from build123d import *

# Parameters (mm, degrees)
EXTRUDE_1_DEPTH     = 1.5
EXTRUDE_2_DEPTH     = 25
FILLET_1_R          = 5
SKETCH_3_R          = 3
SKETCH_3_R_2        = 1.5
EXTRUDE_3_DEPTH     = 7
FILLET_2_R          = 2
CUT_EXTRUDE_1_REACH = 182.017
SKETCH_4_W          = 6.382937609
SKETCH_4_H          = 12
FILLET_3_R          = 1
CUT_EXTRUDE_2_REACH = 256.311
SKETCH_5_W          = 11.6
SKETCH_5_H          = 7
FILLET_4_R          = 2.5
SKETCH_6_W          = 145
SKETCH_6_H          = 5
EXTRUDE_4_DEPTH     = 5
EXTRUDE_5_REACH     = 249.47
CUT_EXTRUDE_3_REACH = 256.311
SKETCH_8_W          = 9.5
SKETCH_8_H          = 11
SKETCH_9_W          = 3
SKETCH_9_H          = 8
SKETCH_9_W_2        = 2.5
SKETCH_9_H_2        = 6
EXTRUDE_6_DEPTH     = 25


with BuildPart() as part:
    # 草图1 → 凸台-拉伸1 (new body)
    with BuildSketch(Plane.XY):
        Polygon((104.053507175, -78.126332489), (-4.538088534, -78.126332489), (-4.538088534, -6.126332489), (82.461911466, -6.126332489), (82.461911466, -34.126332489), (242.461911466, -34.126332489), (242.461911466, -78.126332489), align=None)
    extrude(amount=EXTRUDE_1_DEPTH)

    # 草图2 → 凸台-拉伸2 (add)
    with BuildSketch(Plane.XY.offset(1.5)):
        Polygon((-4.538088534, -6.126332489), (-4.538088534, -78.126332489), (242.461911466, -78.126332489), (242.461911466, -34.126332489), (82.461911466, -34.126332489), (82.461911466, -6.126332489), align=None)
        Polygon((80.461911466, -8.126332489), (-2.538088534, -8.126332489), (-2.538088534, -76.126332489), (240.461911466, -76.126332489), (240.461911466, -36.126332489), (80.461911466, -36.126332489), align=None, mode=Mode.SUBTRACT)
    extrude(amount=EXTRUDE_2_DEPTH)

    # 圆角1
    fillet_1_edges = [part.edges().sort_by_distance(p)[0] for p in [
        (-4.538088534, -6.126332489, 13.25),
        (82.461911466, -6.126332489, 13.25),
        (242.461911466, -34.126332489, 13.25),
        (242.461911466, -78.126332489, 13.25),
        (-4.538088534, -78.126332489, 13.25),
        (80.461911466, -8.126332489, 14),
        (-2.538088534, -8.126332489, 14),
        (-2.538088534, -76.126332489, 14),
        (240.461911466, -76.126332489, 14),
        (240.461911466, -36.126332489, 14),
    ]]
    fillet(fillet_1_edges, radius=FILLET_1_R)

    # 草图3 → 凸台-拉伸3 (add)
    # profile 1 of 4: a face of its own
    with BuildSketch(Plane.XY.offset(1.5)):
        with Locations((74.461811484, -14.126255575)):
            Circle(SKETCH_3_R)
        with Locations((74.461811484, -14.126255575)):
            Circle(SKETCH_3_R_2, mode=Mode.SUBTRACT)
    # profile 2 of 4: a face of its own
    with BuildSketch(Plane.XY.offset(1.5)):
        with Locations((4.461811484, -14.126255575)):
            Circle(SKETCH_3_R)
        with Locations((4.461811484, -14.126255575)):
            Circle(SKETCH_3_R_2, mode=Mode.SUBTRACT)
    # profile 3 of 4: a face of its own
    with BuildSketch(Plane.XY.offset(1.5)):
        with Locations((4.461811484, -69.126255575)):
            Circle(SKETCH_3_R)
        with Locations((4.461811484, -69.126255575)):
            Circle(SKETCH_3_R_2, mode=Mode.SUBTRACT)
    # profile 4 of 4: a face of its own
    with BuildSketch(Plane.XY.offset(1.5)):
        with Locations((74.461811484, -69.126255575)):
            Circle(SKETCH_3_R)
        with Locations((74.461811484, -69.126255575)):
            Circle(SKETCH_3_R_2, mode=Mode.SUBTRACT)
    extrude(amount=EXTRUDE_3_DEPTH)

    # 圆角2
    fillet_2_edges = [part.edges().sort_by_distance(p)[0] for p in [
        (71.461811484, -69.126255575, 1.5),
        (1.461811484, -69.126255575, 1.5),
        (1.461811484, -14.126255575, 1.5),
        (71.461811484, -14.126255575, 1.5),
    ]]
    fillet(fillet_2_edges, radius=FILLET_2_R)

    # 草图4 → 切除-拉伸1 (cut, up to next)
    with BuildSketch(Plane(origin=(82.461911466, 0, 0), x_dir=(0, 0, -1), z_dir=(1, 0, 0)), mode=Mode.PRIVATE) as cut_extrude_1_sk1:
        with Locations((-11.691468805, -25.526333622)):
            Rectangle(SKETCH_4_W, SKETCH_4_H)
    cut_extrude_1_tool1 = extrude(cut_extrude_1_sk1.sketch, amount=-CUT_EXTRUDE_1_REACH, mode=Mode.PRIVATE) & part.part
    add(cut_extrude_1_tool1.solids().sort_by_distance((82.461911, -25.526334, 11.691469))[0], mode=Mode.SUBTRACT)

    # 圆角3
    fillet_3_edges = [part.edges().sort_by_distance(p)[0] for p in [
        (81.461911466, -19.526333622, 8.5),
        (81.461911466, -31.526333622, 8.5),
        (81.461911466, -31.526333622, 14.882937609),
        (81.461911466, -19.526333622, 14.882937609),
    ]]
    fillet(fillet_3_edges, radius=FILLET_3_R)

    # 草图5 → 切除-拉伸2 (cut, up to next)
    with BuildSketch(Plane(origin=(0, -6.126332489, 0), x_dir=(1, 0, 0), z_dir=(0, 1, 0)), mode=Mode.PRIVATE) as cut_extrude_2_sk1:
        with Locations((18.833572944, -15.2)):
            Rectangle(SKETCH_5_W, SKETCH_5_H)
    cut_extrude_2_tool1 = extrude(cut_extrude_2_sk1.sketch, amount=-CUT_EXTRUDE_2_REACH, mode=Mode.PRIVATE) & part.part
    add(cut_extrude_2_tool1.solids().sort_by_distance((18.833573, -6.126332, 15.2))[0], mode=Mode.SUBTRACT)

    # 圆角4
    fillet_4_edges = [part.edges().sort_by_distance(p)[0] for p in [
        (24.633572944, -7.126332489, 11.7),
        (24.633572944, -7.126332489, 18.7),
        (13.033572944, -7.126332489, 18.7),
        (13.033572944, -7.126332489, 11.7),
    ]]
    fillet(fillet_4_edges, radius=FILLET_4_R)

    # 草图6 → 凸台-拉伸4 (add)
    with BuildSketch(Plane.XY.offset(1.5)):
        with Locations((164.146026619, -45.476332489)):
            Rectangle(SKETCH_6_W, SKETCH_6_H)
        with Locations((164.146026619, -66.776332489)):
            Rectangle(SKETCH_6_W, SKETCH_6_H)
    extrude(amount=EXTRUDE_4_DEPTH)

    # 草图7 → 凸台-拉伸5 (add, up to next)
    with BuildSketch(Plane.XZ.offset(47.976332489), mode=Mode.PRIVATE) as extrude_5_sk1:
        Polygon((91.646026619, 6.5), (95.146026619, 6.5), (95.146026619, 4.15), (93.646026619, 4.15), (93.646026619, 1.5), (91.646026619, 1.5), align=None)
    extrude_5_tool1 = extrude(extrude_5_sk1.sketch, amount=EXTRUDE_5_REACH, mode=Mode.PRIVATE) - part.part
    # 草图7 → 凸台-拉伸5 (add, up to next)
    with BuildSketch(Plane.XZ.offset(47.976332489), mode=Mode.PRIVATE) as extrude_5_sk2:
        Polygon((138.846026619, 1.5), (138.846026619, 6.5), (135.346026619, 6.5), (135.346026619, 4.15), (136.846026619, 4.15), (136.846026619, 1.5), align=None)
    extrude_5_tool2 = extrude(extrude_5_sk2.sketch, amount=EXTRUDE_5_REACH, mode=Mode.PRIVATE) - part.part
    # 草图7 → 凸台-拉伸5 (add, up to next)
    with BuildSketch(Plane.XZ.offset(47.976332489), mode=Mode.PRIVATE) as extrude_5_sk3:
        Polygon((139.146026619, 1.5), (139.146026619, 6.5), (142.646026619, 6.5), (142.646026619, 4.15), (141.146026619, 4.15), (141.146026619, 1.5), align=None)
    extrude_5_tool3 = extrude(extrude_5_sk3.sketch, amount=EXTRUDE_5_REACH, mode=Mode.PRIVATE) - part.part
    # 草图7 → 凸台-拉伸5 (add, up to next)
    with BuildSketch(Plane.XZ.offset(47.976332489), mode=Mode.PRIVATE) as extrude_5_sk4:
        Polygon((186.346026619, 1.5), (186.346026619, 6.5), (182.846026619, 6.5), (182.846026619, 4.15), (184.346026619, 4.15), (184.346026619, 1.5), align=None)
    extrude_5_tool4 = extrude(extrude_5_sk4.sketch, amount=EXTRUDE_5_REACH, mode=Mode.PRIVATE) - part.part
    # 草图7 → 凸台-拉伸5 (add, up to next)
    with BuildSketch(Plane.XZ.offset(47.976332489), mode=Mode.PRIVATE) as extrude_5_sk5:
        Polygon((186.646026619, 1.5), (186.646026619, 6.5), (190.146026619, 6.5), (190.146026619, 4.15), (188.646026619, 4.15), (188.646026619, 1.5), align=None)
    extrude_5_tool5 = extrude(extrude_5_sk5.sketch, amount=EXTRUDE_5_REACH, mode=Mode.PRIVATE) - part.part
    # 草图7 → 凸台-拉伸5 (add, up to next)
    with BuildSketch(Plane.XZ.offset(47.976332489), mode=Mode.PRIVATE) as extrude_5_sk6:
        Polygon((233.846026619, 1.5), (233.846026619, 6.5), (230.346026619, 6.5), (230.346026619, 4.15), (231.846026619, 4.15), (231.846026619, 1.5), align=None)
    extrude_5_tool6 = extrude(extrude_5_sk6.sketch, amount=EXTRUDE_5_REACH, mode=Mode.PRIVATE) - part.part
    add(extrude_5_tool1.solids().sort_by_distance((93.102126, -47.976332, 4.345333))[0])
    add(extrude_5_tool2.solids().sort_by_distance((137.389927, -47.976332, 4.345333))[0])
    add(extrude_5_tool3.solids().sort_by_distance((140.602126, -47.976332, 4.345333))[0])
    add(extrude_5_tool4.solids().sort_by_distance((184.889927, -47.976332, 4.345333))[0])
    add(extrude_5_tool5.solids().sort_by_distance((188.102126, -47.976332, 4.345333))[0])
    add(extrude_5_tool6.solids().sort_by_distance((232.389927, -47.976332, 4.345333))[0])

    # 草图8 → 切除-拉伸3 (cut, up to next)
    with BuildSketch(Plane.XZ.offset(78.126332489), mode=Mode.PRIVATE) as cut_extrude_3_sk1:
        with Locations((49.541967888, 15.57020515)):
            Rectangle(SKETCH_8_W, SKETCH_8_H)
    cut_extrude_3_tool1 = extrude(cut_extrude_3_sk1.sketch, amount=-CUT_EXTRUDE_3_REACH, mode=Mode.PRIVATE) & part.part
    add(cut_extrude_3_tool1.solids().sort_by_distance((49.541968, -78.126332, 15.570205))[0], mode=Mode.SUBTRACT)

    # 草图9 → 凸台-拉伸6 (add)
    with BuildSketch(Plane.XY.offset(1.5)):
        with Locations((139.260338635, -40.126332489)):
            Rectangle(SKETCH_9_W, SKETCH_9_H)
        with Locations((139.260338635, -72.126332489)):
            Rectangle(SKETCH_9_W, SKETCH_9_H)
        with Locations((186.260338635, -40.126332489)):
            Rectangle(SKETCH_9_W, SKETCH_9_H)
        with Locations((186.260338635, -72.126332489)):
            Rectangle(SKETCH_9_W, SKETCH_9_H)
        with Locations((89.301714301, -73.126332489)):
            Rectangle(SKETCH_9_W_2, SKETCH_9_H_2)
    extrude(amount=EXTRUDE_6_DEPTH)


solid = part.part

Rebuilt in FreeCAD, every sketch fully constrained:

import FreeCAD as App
import Part
import Sketcher
from FreeCAD import Vector
Q = App.Units.Quantity


def edges_at(feature, points):
    """Names of the edges that pass closest to the given points."""
    edges = feature.Shape.Edges
    near = lambda p: min(range(len(edges)), key=lambda i: edges[i].distToShape(Part.Vertex(*p))[0])
    return sorted({f"Edge{near(p) + 1}" for p in points})

doc = App.newDocument("Part")
body = doc.addObject("PartDesign::Body", "Body")

sketch1 = body.newObject("Sketcher::SketchObject", "Sketch")
sketch1.AttachmentSupport = (doc.getObject("XY_Plane"), [""])
sketch1.MapMode = "FlatFace"
sketch1.addGeometry([
    Part.LineSegment(Vector(-4.538089, -78.126332, 0), Vector(242.461911, -78.126332, 0)),
    Part.LineSegment(Vector(242.461911, -78.126332, 0), Vector(242.461911, -34.126332, 0)),
    Part.LineSegment(Vector(242.461911, -34.126332, 0), Vector(82.461911, -34.126332, 0)),
    Part.LineSegment(Vector(82.461911, -34.126332, 0), Vector(82.461911, -6.126332, 0)),
    Part.LineSegment(Vector(82.461911, -6.126332, 0), Vector(-4.538089, -6.126332, 0)),
    Part.LineSegment(Vector(-4.538089, -6.126332, 0), Vector(-4.538089, -78.126332, 0)),
], False)
sketch1.addConstraint([
    Sketcher.Constraint("Coincident", 0, 2, 1, 1),
    Sketcher.Constraint("Coincident", 1, 2, 2, 1),
    Sketcher.Constraint("Coincident", 2, 2, 3, 1),
    Sketcher.Constraint("Coincident", 3, 2, 4, 1),
    Sketcher.Constraint("Coincident", 4, 2, 5, 1),
    Sketcher.Constraint("Coincident", 5, 2, 0, 1),
    Sketcher.Constraint("Horizontal", 0),
    Sketcher.Constraint("Vertical", 1),
    Sketcher.Constraint("Horizontal", 2),
    Sketcher.Constraint("Vertical", 3),
    Sketcher.Constraint("Horizontal", 4),
    Sketcher.Constraint("Vertical", 5),
    Sketcher.Constraint("DistanceX", 0, 1, 0, 2, Q("247 mm")),
    Sketcher.Constraint("DistanceX", 2, 2, 2, 1, Q("160 mm")),
    Sketcher.Constraint("DistanceY", 1, 1, 1, 2, Q("44 mm")),
    Sketcher.Constraint("DistanceY", 3, 1, 3, 2, Q("28 mm")),
    Sketcher.Constraint("DistanceX", -1, 1, 0, 2, Q("242.461911 mm")),
    Sketcher.Constraint("DistanceY", 0, 2, -1, 1, Q("78.126332 mm")),
])
pad1 = body.newObject("PartDesign::Pad", "Pad")
pad1.Profile = sketch1
pad1.Length = 1.5

sketch2 = body.newObject("Sketcher::SketchObject", "Sketch001")
sketch2.AttachmentSupport = (doc.getObject("XY_Plane"), [""])
sketch2.MapMode = "FlatFace"
sketch2.AttachmentOffset = App.Placement(Vector(0, 0, 1.5), App.Rotation())
sketch2.addGeometry([
    Part.LineSegment(Vector(-4.538089, -6.126332, 0), Vector(-4.538089, -78.126332, 0)),
    Part.LineSegment(Vector(-4.538089, -78.126332, 0), Vector(242.461911, -78.126332, 0)),
    Part.LineSegment(Vector(242.461911, -78.126332, 0), Vector(242.461911, -34.126332, 0)),
    Part.LineSegment(Vector(242.461911, -34.126332, 0), Vector(82.461911, -34.126332, 0)),
    Part.LineSegment(Vector(82.461911, -34.126332, 0), Vector(82.461911, -6.126332, 0)),
    Part.LineSegment(Vector(82.461911, -6.126332, 0), Vector(-4.538089, -6.126332, 0)),
    Part.LineSegment(Vector(-2.538089, -8.126332, 0), Vector(80.461911, -8.126332, 0)),
    Part.LineSegment(Vector(80.461911, -8.126332, 0), Vector(80.461911, -36.126332, 0)),
    Part.LineSegment(Vector(80.461911, -36.126332, 0), Vector(240.461911, -36.126332, 0)),
    Part.LineSegment(Vector(240.461911, -36.126332, 0), Vector(240.461911, -76.126332, 0)),
    Part.LineSegment(Vector(240.461911, -76.126332, 0), Vector(-2.538089, -76.126332, 0)),
    Part.LineSegment(Vector(-2.538089, -76.126332, 0), Vector(-2.538089, -8.126332, 0)),
], False)
sketch2.addConstraint([
    Sketcher.Constraint("Coincident", 0, 2, 1, 1),
    Sketcher.Constraint("Coincident", 1, 2, 2, 1),
    Sketcher.Constraint("Coincident", 2, 2, 3, 1),
    Sketcher.Constraint("Coincident", 3, 2, 4, 1),
    Sketcher.Constraint("Coincident", 4, 2, 5, 1),
    Sketcher.Constraint("Coincident", 5, 2, 0, 1),
    Sketcher.Constraint("Coincident", 6, 2, 7, 1),
    Sketcher.Constraint("Coincident", 7, 2, 8, 1),
    Sketcher.Constraint("Coincident", 8, 2, 9, 1),
    Sketcher.Constraint("Coincident", 9, 2, 10, 1),
    Sketcher.Constraint("Coincident", 10, 2, 11, 1),
    Sketcher.Constraint("Coincident", 11, 2, 6, 1),
    Sketcher.Constraint("Vertical", 0),
    Sketcher.Constraint("Horizontal", 1),
    Sketcher.Constraint("Vertical", 2),
    Sketcher.Constraint("Horizontal", 3),
    Sketcher.Constraint("Vertical", 4),
    Sketcher.Constraint("Horizontal", 5),
    Sketcher.Constraint("Horizontal", 6),
    Sketcher.Constraint("Vertical", 7),
    Sketcher.Constraint("Horizontal", 8),
    Sketcher.Constraint("Vertical", 9),
    Sketcher.Constraint("Horizontal", 10),
    Sketcher.Constraint("Vertical", 11),
    Sketcher.Constraint("Equal", 3, 8),
    Sketcher.Constraint("Equal", 4, 7),
    Sketcher.Constraint("DistanceX", 1, 1, 1, 2, Q("247 mm")),
    Sketcher.Constraint("DistanceX", 3, 2, 3, 1, Q("160 mm")),
    Sketcher.Constraint("DistanceX", 6, 1, 6, 2, Q("83 mm")),
    Sketcher.Constraint("DistanceY", 0, 2, 0, 1, Q("72 mm")),
    Sketcher.Constraint("DistanceY", 2, 1, 2, 2, Q("44 mm")),
    Sketcher.Constraint("DistanceY", 9, 2, 9, 1, Q("40 mm")),
    Sketcher.Constraint("DistanceX", 6, 2, 4, 2, Q("2 mm")),
    Sketcher.Constraint("DistanceY", 6, 2, 4, 2, Q("2 mm")),
    Sketcher.Constraint("DistanceX", 0, 2, -1, 1, Q("4.538089 mm")),
    Sketcher.Constraint("DistanceY", 0, 2, -1, 1, Q("78.126332 mm")),
])
pad2 = body.newObject("PartDesign::Pad", "Pad001")
pad2.Profile = sketch2
pad2.Length = 25
doc.recompute()

fillet = body.newObject("PartDesign::Fillet", "Fillet")
fillet.Base = (pad2, edges_at(pad2, [
    (-4.538, -6.126, 13.25),
    (82.462, -6.126, 13.25),
    (242.462, -34.126, 13.25),
    (242.462, -78.126, 13.25),
    (-4.538, -78.126, 13.25),
    (80.462, -8.126, 14),
    (-2.538, -8.126, 14),
    (-2.538, -76.126, 14),
    (240.462, -76.126, 14),
    (240.462, -36.126, 14),
]))
fillet.Radius = 5

sketch3 = body.newObject("Sketcher::SketchObject", "Sketch002")
sketch3.AttachmentSupport = (doc.getObject("XY_Plane"), [""])
sketch3.MapMode = "FlatFace"
sketch3.AttachmentOffset = App.Placement(Vector(0, 0, 1.5), App.Rotation())
sketch3.addGeometry([
    Part.Circle(Vector(74.461811, -14.126256, 0), Vector(0, 0, 1), 3),
    Part.Circle(Vector(74.461811, -14.126256, 0), Vector(0, 0, 1), 1.5),
    Part.Circle(Vector(4.461811, -14.126256, 0), Vector(0, 0, 1), 3),
    Part.Circle(Vector(4.461811, -14.126256, 0), Vector(0, 0, 1), 1.5),
    Part.Circle(Vector(4.461811, -69.126256, 0), Vector(0, 0, 1), 3),
    Part.Circle(Vector(4.461811, -69.126256, 0), Vector(0, 0, 1), 1.5),
    Part.Circle(Vector(74.461811, -69.126256, 0), Vector(0, 0, 1), 3),
    Part.Circle(Vector(74.461811, -69.126256, 0), Vector(0, 0, 1), 1.5),
], False)
sketch3.addConstraint([
    Sketcher.Constraint("Coincident", 1, 3, 0, 3),
    Sketcher.Constraint("Coincident", 3, 3, 2, 3),
    Sketcher.Constraint("Coincident", 5, 3, 4, 3),
    Sketcher.Constraint("Coincident", 7, 3, 6, 3),
    Sketcher.Constraint("Equal", 0, 2),
    Sketcher.Constraint("Equal", 1, 3),
    Sketcher.Constraint("Equal", 2, 4),
    Sketcher.Constraint("Equal", 3, 5),
    Sketcher.Constraint("Equal", 4, 6),
    Sketcher.Constraint("Equal", 5, 7),
    Sketcher.Constraint("Horizontal", 1, 3, 2, 3),
    Sketcher.Constraint("Horizontal", 5, 3, 6, 3),
    Sketcher.Constraint("Vertical", 3, 3, 4, 3),
    Sketcher.Constraint("Vertical", 1, 3, 6, 3),
    Sketcher.Constraint("Diameter", 0, Q("6 mm")),
    Sketcher.Constraint("Diameter", 1, Q("3 mm")),
    Sketcher.Constraint("DistanceX", 2, 3, 0, 3, Q("70 mm")),
    Sketcher.Constraint("DistanceY", 4, 3, 2, 3, Q("55 mm")),
    Sketcher.Constraint("DistanceX", -1, 1, 0, 3, Q("74.461811 mm")),
    Sketcher.Constraint("DistanceY", 0, 3, -1, 1, Q("14.126256 mm")),
])
pad3 = body.newObject("PartDesign::Pad", "Pad002")
pad3.Profile = sketch3
pad3.Length = 7
doc.recompute()

fillet2 = body.newObject("PartDesign::Fillet", "Fillet001")
fillet2.Base = (pad3, edges_at(pad3, [
    (71.462, -69.126, 1.5),
    (1.462, -69.126, 1.5),
    (1.462, -14.126, 1.5),
    (71.462, -14.126, 1.5),
]))
fillet2.Radius = 2

sketch4 = body.newObject("Sketcher::SketchObject", "Sketch003")
sketch4.AttachmentSupport = (doc.getObject("YZ_Plane"), [""])
sketch4.MapMode = "FlatFace"
sketch4.AttachmentOffset = App.Placement(Vector(0, 0, 82.461911), App.Rotation())
sketch4.addGeometry([
    Part.LineSegment(Vector(-19.526334, 14.882938, 0), Vector(-31.526334, 14.882938, 0)),
    Part.LineSegment(Vector(-31.526334, 14.882938, 0), Vector(-31.526334, 8.5, 0)),
    Part.LineSegment(Vector(-31.526334, 8.5, 0), Vector(-19.526334, 8.5, 0)),
    Part.LineSegment(Vector(-19.526334, 8.5, 0), Vector(-19.526334, 14.882938, 0)),
], False)
sketch4.addConstraint([
    Sketcher.Constraint("Coincident", 0, 2, 1, 1),
    Sketcher.Constraint("Coincident", 1, 2, 2, 1),
    Sketcher.Constraint("Coincident", 2, 2, 3, 1),
    Sketcher.Constraint("Coincident", 3, 2, 0, 1),
    Sketcher.Constraint("Horizontal", 0),
    Sketcher.Constraint("Vertical", 1),
    Sketcher.Constraint("Horizontal", 2),
    Sketcher.Constraint("Vertical", 3),
    Sketcher.Constraint("DistanceX", 0, 2, 0, 1, Q("12 mm")),
    Sketcher.Constraint("DistanceY", -1, 1, 1, 2, Q("8.5 mm")),
    Sketcher.Constraint("DistanceY", 1, 2, 1, 1, Q("6.382938 mm")),
    Sketcher.Constraint("DistanceX", 0, 2, -1, 1, Q("31.526334 mm")),
])
pocket1 = body.newObject("PartDesign::Pocket", "Pocket")
pocket1.Profile = sketch4
pocket1.Type = "UpToFirst"
doc.recompute()

fillet3 = body.newObject("PartDesign::Fillet", "Fillet002")
fillet3.Base = (pocket1, edges_at(pocket1, [
    (81.462, -19.526, 8.5),
    (81.462, -31.526, 8.5),
    (81.462, -31.526, 14.883),
    (81.462, -19.526, 14.883),
]))
fillet3.Radius = 1

sketch5 = body.newObject("Sketcher::SketchObject", "Sketch004")
sketch5.AttachmentSupport = (doc.getObject("XZ_Plane"), [""])
sketch5.MapMode = "FlatFace"
sketch5.AttachmentOffset = App.Placement(Vector(0, 0, 6.126332), App.Rotation())
sketch5.addGeometry([
    Part.LineSegment(Vector(13.033573, 11.7, 0), Vector(13.033573, 18.7, 0)),
    Part.LineSegment(Vector(13.033573, 18.7, 0), Vector(24.633573, 18.7, 0)),
    Part.LineSegment(Vector(24.633573, 18.7, 0), Vector(24.633573, 11.7, 0)),
    Part.LineSegment(Vector(24.633573, 11.7, 0), Vector(13.033573, 11.7, 0)),
], False)
sketch5.addConstraint([
    Sketcher.Constraint("Coincident", 0, 2, 1, 1),
    Sketcher.Constraint("Coincident", 1, 2, 2, 1),
    Sketcher.Constraint("Coincident", 2, 2, 3, 1),
    Sketcher.Constraint("Coincident", 3, 2, 0, 1),
    Sketcher.Constraint("Vertical", 0),
    Sketcher.Constraint("Horizontal", 1),
    Sketcher.Constraint("Vertical", 2),
    Sketcher.Constraint("Horizontal", 3),
    Sketcher.Constraint("DistanceY", 0, 1, 0, 2, Q("7 mm")),
    Sketcher.Constraint("DistanceX", 1, 1, 1, 2, Q("11.6 mm")),
    Sketcher.Constraint("DistanceY", -1, 1, 0, 2, Q("18.7 mm")),
    Sketcher.Constraint("DistanceX", -1, 1, 0, 2, Q("13.033573 mm")),
])
pocket2 = body.newObject("PartDesign::Pocket", "Pocket001")
pocket2.Profile = sketch5
pocket2.Type = "UpToFirst"
pocket2.Reversed = True
doc.recompute()

fillet4 = body.newObject("PartDesign::Fillet", "Fillet003")
fillet4.Base = (pocket2, edges_at(pocket2, [
    (24.634, -7.126, 11.7),
    (24.634, -7.126, 18.7),
    (13.034, -7.126, 18.7),
    (13.034, -7.126, 11.7),
]))
fillet4.Radius = 2.5

sketch6 = body.newObject("Sketcher::SketchObject", "Sketch005")
sketch6.AttachmentSupport = (doc.getObject("XY_Plane"), [""])
sketch6.MapMode = "FlatFace"
sketch6.AttachmentOffset = App.Placement(Vector(0, 0, 1.5), App.Rotation())
sketch6.addGeometry([
    Part.LineSegment(Vector(91.646027, -42.976332, 0), Vector(91.646027, -47.976332, 0)),
    Part.LineSegment(Vector(91.646027, -47.976332, 0), Vector(236.646027, -47.976332, 0)),
    Part.LineSegment(Vector(236.646027, -47.976332, 0), Vector(236.646027, -42.976332, 0)),
    Part.LineSegment(Vector(236.646027, -42.976332, 0), Vector(91.646027, -42.976332, 0)),
    Part.LineSegment(Vector(91.646027, -64.276332, 0), Vector(91.646027, -69.276332, 0)),
    Part.LineSegment(Vector(91.646027, -69.276332, 0), Vector(236.646027, -69.276332, 0)),
    Part.LineSegment(Vector(236.646027, -69.276332, 0), Vector(236.646027, -64.276332, 0)),
    Part.LineSegment(Vector(236.646027, -64.276332, 0), Vector(91.646027, -64.276332, 0)),
], False)
sketch6.addConstraint([
    Sketcher.Constraint("Coincident", 0, 2, 1, 1),
    Sketcher.Constraint("Coincident", 1, 2, 2, 1),
    Sketcher.Constraint("Coincident", 2, 2, 3, 1),
    Sketcher.Constraint("Coincident", 3, 2, 0, 1),
    Sketcher.Constraint("Coincident", 4, 2, 5, 1),
    Sketcher.Constraint("Coincident", 5, 2, 6, 1),
    Sketcher.Constraint("Coincident", 6, 2, 7, 1),
    Sketcher.Constraint("Coincident", 7, 2, 4, 1),
    Sketcher.Constraint("Vertical", 0),
    Sketcher.Constraint("Horizontal", 1),
    Sketcher.Constraint("Vertical", 2),
    Sketcher.Constraint("Horizontal", 3),
    Sketcher.Constraint("Vertical", 4),
    Sketcher.Constraint("Horizontal", 5),
    Sketcher.Constraint("Vertical", 6),
    Sketcher.Constraint("Horizontal", 7),
    Sketcher.Constraint("Vertical", 3, 2, 4, 2),
    Sketcher.Constraint("Vertical", 2, 2, 5, 2),
    Sketcher.Constraint("Equal", 2, 4),
    Sketcher.Constraint("DistanceX", 1, 1, 1, 2, Q("145 mm")),
    Sketcher.Constraint("DistanceY", 0, 2, 0, 1, Q("5 mm")),
    Sketcher.Constraint("DistanceY", 4, 2, 0, 2, Q("21.3 mm")),
    Sketcher.Constraint("DistanceX", -1, 1, 0, 2, Q("91.646027 mm")),
    Sketcher.Constraint("DistanceY", 0, 2, -1, 1, Q("47.976332 mm")),
])
pad4 = body.newObject("PartDesign::Pad", "Pad003")
pad4.Profile = sketch6
pad4.Length = 5

sketch7 = body.newObject("Sketcher::SketchObject", "Sketch006")
sketch7.AttachmentSupport = (doc.getObject("XZ_Plane"), [""])
sketch7.MapMode = "FlatFace"
sketch7.AttachmentOffset = App.Placement(Vector(0, 0, 47.976332), App.Rotation())
sketch7.addGeometry([
    Part.LineSegment(Vector(95.146027, 6.5, 0), Vector(91.646027, 6.5, 0)),
    Part.LineSegment(Vector(91.646027, 6.5, 0), Vector(91.646027, 1.5, 0)),
    Part.LineSegment(Vector(91.646027, 1.5, 0), Vector(93.646027, 1.5, 0)),
    Part.LineSegment(Vector(93.646027, 1.5, 0), Vector(93.646027, 4.15, 0)),
    Part.LineSegment(Vector(93.646027, 4.15, 0), Vector(95.146027, 4.15, 0)),
    Part.LineSegment(Vector(95.146027, 4.15, 0), Vector(95.146027, 6.5, 0)),
], False)
sketch7.addConstraint([
    Sketcher.Constraint("Coincident", 0, 2, 1, 1),
    Sketcher.Constraint("Coincident", 1, 2, 2, 1),
    Sketcher.Constraint("Coincident", 2, 2, 3, 1),
    Sketcher.Constraint("Coincident", 3, 2, 4, 1),
    Sketcher.Constraint("Coincident", 4, 2, 5, 1),
    Sketcher.Constraint("Coincident", 5, 2, 0, 1),
    Sketcher.Constraint("Horizontal", 0),
    Sketcher.Constraint("Vertical", 1),
    Sketcher.Constraint("Horizontal", 2),
    Sketcher.Constraint("Vertical", 3),
    Sketcher.Constraint("Horizontal", 4),
    Sketcher.Constraint("Vertical", 5),
    Sketcher.Constraint("DistanceX", 2, 1, 2, 2, Q("2 mm")),
    Sketcher.Constraint("DistanceY", 1, 2, 1, 1, Q("5 mm")),
    Sketcher.Constraint("DistanceX", 0, 2, 0, 1, Q("3.5 mm")),
    Sketcher.Constraint("DistanceY", 3, 1, 3, 2, Q("2.65 mm")),
    Sketcher.Constraint("DistanceY", -1, 1, 0, 2, Q("6.5 mm")),
    Sketcher.Constraint("DistanceX", -1, 1, 0, 2, Q("91.646027 mm")),
])
pad5 = body.newObject("PartDesign::Pad", "Pad004")
pad5.Profile = sketch7
pad5.Type = "UpToFirst"

sketch8 = body.newObject("Sketcher::SketchObject", "Sketch007")
sketch8.AttachmentSupport = (doc.getObject("XZ_Plane"), [""])
sketch8.MapMode = "FlatFace"
sketch8.AttachmentOffset = App.Placement(Vector(0, 0, 47.976332), App.Rotation())
sketch8.addGeometry([
    Part.LineSegment(Vector(138.846027, 1.5, 0), Vector(138.846027, 6.5, 0)),
    Part.LineSegment(Vector(138.846027, 6.5, 0), Vector(135.346027, 6.5, 0)),
    Part.LineSegment(Vector(135.346027, 6.5, 0), Vector(135.346027, 4.15, 0)),
    Part.LineSegment(Vector(135.346027, 4.15, 0), Vector(136.846027, 4.15, 0)),
    Part.LineSegment(Vector(136.846027, 4.15, 0), Vector(136.846027, 1.5, 0)),
    Part.LineSegment(Vector(136.846027, 1.5, 0), Vector(138.846027, 1.5, 0)),
], False)
sketch8.addConstraint([
    Sketcher.Constraint("Coincident", 0, 2, 1, 1),
    Sketcher.Constraint("Coincident", 1, 2, 2, 1),
    Sketcher.Constraint("Coincident", 2, 2, 3, 1),
    Sketcher.Constraint("Coincident", 3, 2, 4, 1),
    Sketcher.Constraint("Coincident", 4, 2, 5, 1),
    Sketcher.Constraint("Coincident", 5, 2, 0, 1),
    Sketcher.Constraint("Vertical", 0),
    Sketcher.Constraint("Horizontal", 1),
    Sketcher.Constraint("Vertical", 2),
    Sketcher.Constraint("Horizontal", 3),
    Sketcher.Constraint("Vertical", 4),
    Sketcher.Constraint("Horizontal", 5),
    Sketcher.Constraint("DistanceX", 5, 1, 5, 2, Q("2 mm")),
    Sketcher.Constraint("DistanceY", 0, 1, 0, 2, Q("5 mm")),
    Sketcher.Constraint("DistanceX", 1, 2, 1, 1, Q("3.5 mm")),
    Sketcher.Constraint("DistanceY", 2, 2, 2, 1, Q("2.35 mm")),
    Sketcher.Constraint("DistanceY", -1, 1, 0, 2, Q("6.5 mm")),
    Sketcher.Constraint("DistanceX", -1, 1, 0, 2, Q("138.846027 mm")),
])
pad6 = body.newObject("PartDesign::Pad", "Pad005")
pad6.Profile = sketch8
pad6.Type = "UpToFirst"

sketch9 = body.newObject("Sketcher::SketchObject", "Sketch008")
sketch9.AttachmentSupport = (doc.getObject("XZ_Plane"), [""])
sketch9.MapMode = "FlatFace"
sketch9.AttachmentOffset = App.Placement(Vector(0, 0, 47.976332), App.Rotation())
sketch9.addGeometry([
    Part.LineSegment(Vector(139.146027, 6.5, 0), Vector(139.146027, 1.5, 0)),
    Part.LineSegment(Vector(139.146027, 1.5, 0), Vector(141.146027, 1.5, 0)),
    Part.LineSegment(Vector(141.146027, 1.5, 0), Vector(141.146027, 4.15, 0)),
    Part.LineSegment(Vector(141.146027, 4.15, 0), Vector(142.646027, 4.15, 0)),
    Part.LineSegment(Vector(142.646027, 4.15, 0), Vector(142.646027, 6.5, 0)),
    Part.LineSegment(Vector(142.646027, 6.5, 0), Vector(139.146027, 6.5, 0)),
], False)
sketch9.addConstraint([
    Sketcher.Constraint("Coincident", 0, 2, 1, 1),
    Sketcher.Constraint("Coincident", 1, 2, 2, 1),
    Sketcher.Constraint("Coincident", 2, 2, 3, 1),
    Sketcher.Constraint("Coincident", 3, 2, 4, 1),
    Sketcher.Constraint("Coincident", 4, 2, 5, 1),
    Sketcher.Constraint("Coincident", 5, 2, 0, 1),
    Sketcher.Constraint("Vertical", 0),
    Sketcher.Constraint("Horizontal", 1),
    Sketcher.Constraint("Vertical", 2),
    Sketcher.Constraint("Horizontal", 3),
    Sketcher.Constraint("Vertical", 4),
    Sketcher.Constraint("Horizontal", 5),
    Sketcher.Constraint("DistanceX", 1, 1, 1, 2, Q("2 mm")),
    Sketcher.Constraint("DistanceY", 0, 2, 0, 1, Q("5 mm")),
    Sketcher.Constraint("DistanceX", 3, 1, 3, 2, Q("1.5 mm")),
    Sketcher.Constraint("DistanceY", 2, 1, 2, 2, Q("2.65 mm")),
    Sketcher.Constraint("DistanceY", -1, 1, 0, 2, Q("1.5 mm")),
    Sketcher.Constraint("DistanceX", -1, 1, 0, 2, Q("139.146027 mm")),
])
pad7 = body.newObject("PartDesign::Pad", "Pad006")
pad7.Profile = sketch9
pad7.Type = "UpToFirst"

sketch10 = body.newObject("Sketcher::SketchObject", "Sketch009")
sketch10.AttachmentSupport = (doc.getObject("XZ_Plane"), [""])
sketch10.MapMode = "FlatFace"
sketch10.AttachmentOffset = App.Placement(Vector(0, 0, 47.976332), App.Rotation())
sketch10.addGeometry([
    Part.LineSegment(Vector(186.346027, 1.5, 0), Vector(186.346027, 6.5, 0)),
    Part.LineSegment(Vector(186.346027, 6.5, 0), Vector(182.846027, 6.5, 0)),
    Part.LineSegment(Vector(182.846027, 6.5, 0), Vector(182.846027, 4.15, 0)),
    Part.LineSegment(Vector(182.846027, 4.15, 0), Vector(184.346027, 4.15, 0)),
    Part.LineSegment(Vector(184.346027, 4.15, 0), Vector(184.346027, 1.5, 0)),
    Part.LineSegment(Vector(184.346027, 1.5, 0), Vector(186.346027, 1.5, 0)),
], False)
sketch10.addConstraint([
    Sketcher.Constraint("Coincident", 0, 2, 1, 1),
    Sketcher.Constraint("Coincident", 1, 2, 2, 1),
    Sketcher.Constraint("Coincident", 2, 2, 3, 1),
    Sketcher.Constraint("Coincident", 3, 2, 4, 1),
    Sketcher.Constraint("Coincident", 4, 2, 5, 1),
    Sketcher.Constraint("Coincident", 5, 2, 0, 1),
    Sketcher.Constraint("Vertical", 0),
    Sketcher.Constraint("Horizontal", 1),
    Sketcher.Constraint("Vertical", 2),
    Sketcher.Constraint("Horizontal", 3),
    Sketcher.Constraint("Vertical", 4),
    Sketcher.Constraint("Horizontal", 5),
    Sketcher.Constraint("DistanceX", 5, 1, 5, 2, Q("2 mm")),
    Sketcher.Constraint("DistanceY", 0, 1, 0, 2, Q("5 mm")),
    Sketcher.Constraint("DistanceX", 1, 2, 1, 1, Q("3.5 mm")),
    Sketcher.Constraint("DistanceY", 2, 2, 2, 1, Q("2.35 mm")),
    Sketcher.Constraint("DistanceY", -1, 1, 0, 2, Q("6.5 mm")),
    Sketcher.Constraint("DistanceX", -1, 1, 0, 2, Q("186.346027 mm")),
])
pad8 = body.newObject("PartDesign::Pad", "Pad007")
pad8.Profile = sketch10
pad8.Type = "UpToFirst"

sketch11 = body.newObject("Sketcher::SketchObject", "Sketch010")
sketch11.AttachmentSupport = (doc.getObject("XZ_Plane"), [""])
sketch11.MapMode = "FlatFace"
sketch11.AttachmentOffset = App.Placement(Vector(0, 0, 47.976332), App.Rotation())
sketch11.addGeometry([
    Part.LineSegment(Vector(186.646027, 6.5, 0), Vector(186.646027, 1.5, 0)),
    Part.LineSegment(Vector(186.646027, 1.5, 0), Vector(188.646027, 1.5, 0)),
    Part.LineSegment(Vector(188.646027, 1.5, 0), Vector(188.646027, 4.15, 0)),
    Part.LineSegment(Vector(188.646027, 4.15, 0), Vector(190.146027, 4.15, 0)),
    Part.LineSegment(Vector(190.146027, 4.15, 0), Vector(190.146027, 6.5, 0)),
    Part.LineSegment(Vector(190.146027, 6.5, 0), Vector(186.646027, 6.5, 0)),
], False)
sketch11.addConstraint([
    Sketcher.Constraint("Coincident", 0, 2, 1, 1),
    Sketcher.Constraint("Coincident", 1, 2, 2, 1),
    Sketcher.Constraint("Coincident", 2, 2, 3, 1),
    Sketcher.Constraint("Coincident", 3, 2, 4, 1),
    Sketcher.Constraint("Coincident", 4, 2, 5, 1),
    Sketcher.Constraint("Coincident", 5, 2, 0, 1),
    Sketcher.Constraint("Vertical", 0),
    Sketcher.Constraint("Horizontal", 1),
    Sketcher.Constraint("Vertical", 2),
    Sketcher.Constraint("Horizontal", 3),
    Sketcher.Constraint("Vertical", 4),
    Sketcher.Constraint("Horizontal", 5),
    Sketcher.Constraint("DistanceX", 1, 1, 1, 2, Q("2 mm")),
    Sketcher.Constraint("DistanceY", 0, 2, 0, 1, Q("5 mm")),
    Sketcher.Constraint("DistanceX", 3, 1, 3, 2, Q("1.5 mm")),
    Sketcher.Constraint("DistanceY", 2, 1, 2, 2, Q("2.65 mm")),
    Sketcher.Constraint("DistanceY", -1, 1, 0, 2, Q("1.5 mm")),
    Sketcher.Constraint("DistanceX", -1, 1, 0, 2, Q("186.646027 mm")),
])
pad9 = body.newObject("PartDesign::Pad", "Pad008")
pad9.Profile = sketch11
pad9.Type = "UpToFirst"

sketch12 = body.newObject("Sketcher::SketchObject", "Sketch011")
sketch12.AttachmentSupport = (doc.getObject("XZ_Plane"), [""])
sketch12.MapMode = "FlatFace"
sketch12.AttachmentOffset = App.Placement(Vector(0, 0, 47.976332), App.Rotation())
sketch12.addGeometry([
    Part.LineSegment(Vector(233.846027, 1.5, 0), Vector(233.846027, 6.5, 0)),
    Part.LineSegment(Vector(233.846027, 6.5, 0), Vector(230.346027, 6.5, 0)),
    Part.LineSegment(Vector(230.346027, 6.5, 0), Vector(230.346027, 4.15, 0)),
    Part.LineSegment(Vector(230.346027, 4.15, 0), Vector(231.846027, 4.15, 0)),
    Part.LineSegment(Vector(231.846027, 4.15, 0), Vector(231.846027, 1.5, 0)),
    Part.LineSegment(Vector(231.846027, 1.5, 0), Vector(233.846027, 1.5, 0)),
], False)
sketch12.addConstraint([
    Sketcher.Constraint("Coincident", 0, 2, 1, 1),
    Sketcher.Constraint("Coincident", 1, 2, 2, 1),
    Sketcher.Constraint("Coincident", 2, 2, 3, 1),
    Sketcher.Constraint("Coincident", 3, 2, 4, 1),
    Sketcher.Constraint("Coincident", 4, 2, 5, 1),
    Sketcher.Constraint("Coincident", 5, 2, 0, 1),
    Sketcher.Constraint("Vertical", 0),
    Sketcher.Constraint("Horizontal", 1),
    Sketcher.Constraint("Vertical", 2),
    Sketcher.Constraint("Horizontal", 3),
    Sketcher.Constraint("Vertical", 4),
    Sketcher.Constraint("Horizontal", 5),
    Sketcher.Constraint("DistanceX", 5, 1, 5, 2, Q("2 mm")),
    Sketcher.Constraint("DistanceY", 0, 1, 0, 2, Q("5 mm")),
    Sketcher.Constraint("DistanceX", 1, 2, 1, 1, Q("3.5 mm")),
    Sketcher.Constraint("DistanceY", 2, 2, 2, 1, Q("2.35 mm")),
    Sketcher.Constraint("DistanceY", -1, 1, 0, 2, Q("6.5 mm")),
    Sketcher.Constraint("DistanceX", -1, 1, 0, 2, Q("233.846027 mm")),
])
pad10 = body.newObject("PartDesign::Pad", "Pad009")
pad10.Profile = sketch12
pad10.Type = "UpToFirst"

sketch13 = body.newObject("Sketcher::SketchObject", "Sketch012")
sketch13.AttachmentSupport = (doc.getObject("XZ_Plane"), [""])
sketch13.MapMode = "FlatFace"
sketch13.AttachmentOffset = App.Placement(Vector(0, 0, 78.126332), App.Rotation())
sketch13.addGeometry([
    Part.LineSegment(Vector(44.791968, 21.070205, 0), Vector(44.791968, 10.070205, 0)),
    Part.LineSegment(Vector(44.791968, 10.070205, 0), Vector(54.291968, 10.070205, 0)),
    Part.LineSegment(Vector(54.291968, 10.070205, 0), Vector(54.291968, 21.070205, 0)),
    Part.LineSegment(Vector(54.291968, 21.070205, 0), Vector(44.791968, 21.070205, 0)),
], False)
sketch13.addConstraint([
    Sketcher.Constraint("Coincident", 0, 2, 1, 1),
    Sketcher.Constraint("Coincident", 1, 2, 2, 1),
    Sketcher.Constraint("Coincident", 2, 2, 3, 1),
    Sketcher.Constraint("Coincident", 3, 2, 0, 1),
    Sketcher.Constraint("Vertical", 0),
    Sketcher.Constraint("Horizontal", 1),
    Sketcher.Constraint("Vertical", 2),
    Sketcher.Constraint("Horizontal", 3),
    Sketcher.Constraint("DistanceY", 0, 2, 0, 1, Q("11 mm")),
    Sketcher.Constraint("DistanceX", 1, 1, 1, 2, Q("9.5 mm")),
    Sketcher.Constraint("DistanceX", -1, 1, 0, 2, Q("44.791968 mm")),
    Sketcher.Constraint("DistanceY", -1, 1, 0, 2, Q("10.070205 mm")),
])
pocket3 = body.newObject("PartDesign::Pocket", "Pocket002")
pocket3.Profile = sketch13
pocket3.Type = "UpToFirst"

sketch14 = body.newObject("Sketcher::SketchObject", "Sketch013")
sketch14.AttachmentSupport = (doc.getObject("XY_Plane"), [""])
sketch14.MapMode = "FlatFace"
sketch14.AttachmentOffset = App.Placement(Vector(0, 0, 1.5), App.Rotation())
sketch14.addGeometry([
    Part.LineSegment(Vector(137.760339, -36.126332, 0), Vector(137.760339, -44.126332, 0)),
    Part.LineSegment(Vector(137.760339, -44.126332, 0), Vector(140.760339, -44.126332, 0)),
    Part.LineSegment(Vector(140.760339, -44.126332, 0), Vector(140.760339, -36.126332, 0)),
    Part.LineSegment(Vector(140.760339, -36.126332, 0), Vector(137.760339, -36.126332, 0)),
    Part.LineSegment(Vector(137.760339, -68.126332, 0), Vector(137.760339, -76.126332, 0)),
    Part.LineSegment(Vector(137.760339, -76.126332, 0), Vector(140.760339, -76.126332, 0)),
    Part.LineSegment(Vector(140.760339, -76.126332, 0), Vector(140.760339, -68.126332, 0)),
    Part.LineSegment(Vector(140.760339, -68.126332, 0), Vector(137.760339, -68.126332, 0)),
    Part.LineSegment(Vector(184.760339, -36.126332, 0), Vector(184.760339, -44.126332, 0)),
    Part.LineSegment(Vector(184.760339, -44.126332, 0), Vector(187.760339, -44.126332, 0)),
    Part.LineSegment(Vector(187.760339, -44.126332, 0), Vector(187.760339, -36.126332, 0)),
    Part.LineSegment(Vector(187.760339, -36.126332, 0), Vector(184.760339, -36.126332, 0)),
    Part.LineSegment(Vector(184.760339, -68.126332, 0), Vector(184.760339, -76.126332, 0)),
    Part.LineSegment(Vector(184.760339, -76.126332, 0), Vector(187.760339, -76.126332, 0)),
    Part.LineSegment(Vector(187.760339, -76.126332, 0), Vector(187.760339, -68.126332, 0)),
    Part.LineSegment(Vector(187.760339, -68.126332, 0), Vector(184.760339, -68.126332, 0)),
    Part.LineSegment(Vector(88.051714, -70.126332, 0), Vector(88.051714, -76.126332, 0)),
    Part.LineSegment(Vector(88.051714, -76.126332, 0), Vector(90.551714, -76.126332, 0)),
    Part.LineSegment(Vector(90.551714, -76.126332, 0), Vector(90.551714, -70.126332, 0)),
    Part.LineSegment(Vector(90.551714, -70.126332, 0), Vector(88.051714, -70.126332, 0)),
], False)
sketch14.addConstraint([
    Sketcher.Constraint("Coincident", 0, 2, 1, 1),
    Sketcher.Constraint("Coincident", 1, 2, 2, 1),
    Sketcher.Constraint("Coincident", 2, 2, 3, 1),
    Sketcher.Constraint("Coincident", 3, 2, 0, 1),
    Sketcher.Constraint("Coincident", 4, 2, 5, 1),
    Sketcher.Constraint("Coincident", 5, 2, 6, 1),
    Sketcher.Constraint("Coincident", 6, 2, 7, 1),
    Sketcher.Constraint("Coincident", 7, 2, 4, 1),
    Sketcher.Constraint("Coincident", 8, 2, 9, 1),
    Sketcher.Constraint("Coincident", 9, 2, 10, 1),
    Sketcher.Constraint("Coincident", 10, 2, 11, 1),
    Sketcher.Constraint("Coincident", 11, 2, 8, 1),
    Sketcher.Constraint("Coincident", 12, 2, 13, 1),
    Sketcher.Constraint("Coincident", 13, 2, 14, 1),
    Sketcher.Constraint("Coincident", 14, 2, 15, 1),
    Sketcher.Constraint("Coincident", 15, 2, 12, 1),
    Sketcher.Constraint("Coincident", 16, 2, 17, 1),
    Sketcher.Constraint("Coincident", 17, 2, 18, 1),
    Sketcher.Constraint("Coincident", 18, 2, 19, 1),
    Sketcher.Constraint("Coincident", 19, 2, 16, 1),
    Sketcher.Constraint("Vertical", 0),
    Sketcher.Constraint("Horizontal", 1),
    Sketcher.Constraint("Vertical", 2),
    Sketcher.Constraint("Horizontal", 3),
    Sketcher.Constraint("Vertical", 4),
    Sketcher.Constraint("Horizontal", 5),
    Sketcher.Constraint("Vertical", 6),
    Sketcher.Constraint("Horizontal", 7),
    Sketcher.Constraint("Vertical", 8),
    Sketcher.Constraint("Horizontal", 9),
    Sketcher.Constraint("Vertical", 10),
    Sketcher.Constraint("Horizontal", 11),
    Sketcher.Constraint("Vertical", 12),
    Sketcher.Constraint("Horizontal", 13),
    Sketcher.Constraint("Vertical", 14),
    Sketcher.Constraint("Horizontal", 15),
    Sketcher.Constraint("Vertical", 16),
    Sketcher.Constraint("Horizontal", 17),
    Sketcher.Constraint("Vertical", 18),
    Sketcher.Constraint("Horizontal", 19),
    Sketcher.Constraint("Horizontal", 1, 2, 8, 2),
    Sketcher.Constraint("Horizontal", 3, 2, 10, 2),
    Sketcher.Constraint("Horizontal", 5, 2, 12, 2),
    Sketcher.Constraint("Horizontal", 7, 2, 14, 2),
    Sketcher.Constraint("Horizontal", 13, 2, 16, 2),
    Sketcher.Constraint("Vertical", 3, 2, 4, 2),
    Sketcher.Constraint("Vertical", 2, 2, 5, 2),
    Sketcher.Constraint("Vertical", 11, 2, 12, 2),
    Sketcher.Constraint("Vertical", 10, 2, 13, 2),
    Sketcher.Constraint("Equal", 7, 9),
    Sketcher.Constraint("Equal", 2, 4),
    Sketcher.Constraint("DistanceX", 1, 1, 1, 2, Q("3 mm")),
    Sketcher.Constraint("DistanceY", 0, 2, 0, 1, Q("8 mm")),
    Sketcher.Constraint("DistanceY", 16, 2, 16, 1, Q("6 mm")),
    Sketcher.Constraint("DistanceX", 17, 1, 17, 2, Q("2.5 mm")),
    Sketcher.Constraint("DistanceY", 4, 2, 0, 2, Q("32 mm")),
    Sketcher.Constraint("DistanceX", 1, 2, 8, 2, Q("44 mm")),
    Sketcher.Constraint("DistanceX", -1, 1, 0, 2, Q("137.760339 mm")),
    Sketcher.Constraint("DistanceY", 0, 2, -1, 1, Q("44.126332 mm")),
    Sketcher.Constraint("DistanceX", -1, 1, 16, 2, Q("88.051714 mm")),
])
pad11 = body.newObject("PartDesign::Pad", "Pad010")
pad11.Profile = sketch14
pad11.Length = 25

doc.recompute()
